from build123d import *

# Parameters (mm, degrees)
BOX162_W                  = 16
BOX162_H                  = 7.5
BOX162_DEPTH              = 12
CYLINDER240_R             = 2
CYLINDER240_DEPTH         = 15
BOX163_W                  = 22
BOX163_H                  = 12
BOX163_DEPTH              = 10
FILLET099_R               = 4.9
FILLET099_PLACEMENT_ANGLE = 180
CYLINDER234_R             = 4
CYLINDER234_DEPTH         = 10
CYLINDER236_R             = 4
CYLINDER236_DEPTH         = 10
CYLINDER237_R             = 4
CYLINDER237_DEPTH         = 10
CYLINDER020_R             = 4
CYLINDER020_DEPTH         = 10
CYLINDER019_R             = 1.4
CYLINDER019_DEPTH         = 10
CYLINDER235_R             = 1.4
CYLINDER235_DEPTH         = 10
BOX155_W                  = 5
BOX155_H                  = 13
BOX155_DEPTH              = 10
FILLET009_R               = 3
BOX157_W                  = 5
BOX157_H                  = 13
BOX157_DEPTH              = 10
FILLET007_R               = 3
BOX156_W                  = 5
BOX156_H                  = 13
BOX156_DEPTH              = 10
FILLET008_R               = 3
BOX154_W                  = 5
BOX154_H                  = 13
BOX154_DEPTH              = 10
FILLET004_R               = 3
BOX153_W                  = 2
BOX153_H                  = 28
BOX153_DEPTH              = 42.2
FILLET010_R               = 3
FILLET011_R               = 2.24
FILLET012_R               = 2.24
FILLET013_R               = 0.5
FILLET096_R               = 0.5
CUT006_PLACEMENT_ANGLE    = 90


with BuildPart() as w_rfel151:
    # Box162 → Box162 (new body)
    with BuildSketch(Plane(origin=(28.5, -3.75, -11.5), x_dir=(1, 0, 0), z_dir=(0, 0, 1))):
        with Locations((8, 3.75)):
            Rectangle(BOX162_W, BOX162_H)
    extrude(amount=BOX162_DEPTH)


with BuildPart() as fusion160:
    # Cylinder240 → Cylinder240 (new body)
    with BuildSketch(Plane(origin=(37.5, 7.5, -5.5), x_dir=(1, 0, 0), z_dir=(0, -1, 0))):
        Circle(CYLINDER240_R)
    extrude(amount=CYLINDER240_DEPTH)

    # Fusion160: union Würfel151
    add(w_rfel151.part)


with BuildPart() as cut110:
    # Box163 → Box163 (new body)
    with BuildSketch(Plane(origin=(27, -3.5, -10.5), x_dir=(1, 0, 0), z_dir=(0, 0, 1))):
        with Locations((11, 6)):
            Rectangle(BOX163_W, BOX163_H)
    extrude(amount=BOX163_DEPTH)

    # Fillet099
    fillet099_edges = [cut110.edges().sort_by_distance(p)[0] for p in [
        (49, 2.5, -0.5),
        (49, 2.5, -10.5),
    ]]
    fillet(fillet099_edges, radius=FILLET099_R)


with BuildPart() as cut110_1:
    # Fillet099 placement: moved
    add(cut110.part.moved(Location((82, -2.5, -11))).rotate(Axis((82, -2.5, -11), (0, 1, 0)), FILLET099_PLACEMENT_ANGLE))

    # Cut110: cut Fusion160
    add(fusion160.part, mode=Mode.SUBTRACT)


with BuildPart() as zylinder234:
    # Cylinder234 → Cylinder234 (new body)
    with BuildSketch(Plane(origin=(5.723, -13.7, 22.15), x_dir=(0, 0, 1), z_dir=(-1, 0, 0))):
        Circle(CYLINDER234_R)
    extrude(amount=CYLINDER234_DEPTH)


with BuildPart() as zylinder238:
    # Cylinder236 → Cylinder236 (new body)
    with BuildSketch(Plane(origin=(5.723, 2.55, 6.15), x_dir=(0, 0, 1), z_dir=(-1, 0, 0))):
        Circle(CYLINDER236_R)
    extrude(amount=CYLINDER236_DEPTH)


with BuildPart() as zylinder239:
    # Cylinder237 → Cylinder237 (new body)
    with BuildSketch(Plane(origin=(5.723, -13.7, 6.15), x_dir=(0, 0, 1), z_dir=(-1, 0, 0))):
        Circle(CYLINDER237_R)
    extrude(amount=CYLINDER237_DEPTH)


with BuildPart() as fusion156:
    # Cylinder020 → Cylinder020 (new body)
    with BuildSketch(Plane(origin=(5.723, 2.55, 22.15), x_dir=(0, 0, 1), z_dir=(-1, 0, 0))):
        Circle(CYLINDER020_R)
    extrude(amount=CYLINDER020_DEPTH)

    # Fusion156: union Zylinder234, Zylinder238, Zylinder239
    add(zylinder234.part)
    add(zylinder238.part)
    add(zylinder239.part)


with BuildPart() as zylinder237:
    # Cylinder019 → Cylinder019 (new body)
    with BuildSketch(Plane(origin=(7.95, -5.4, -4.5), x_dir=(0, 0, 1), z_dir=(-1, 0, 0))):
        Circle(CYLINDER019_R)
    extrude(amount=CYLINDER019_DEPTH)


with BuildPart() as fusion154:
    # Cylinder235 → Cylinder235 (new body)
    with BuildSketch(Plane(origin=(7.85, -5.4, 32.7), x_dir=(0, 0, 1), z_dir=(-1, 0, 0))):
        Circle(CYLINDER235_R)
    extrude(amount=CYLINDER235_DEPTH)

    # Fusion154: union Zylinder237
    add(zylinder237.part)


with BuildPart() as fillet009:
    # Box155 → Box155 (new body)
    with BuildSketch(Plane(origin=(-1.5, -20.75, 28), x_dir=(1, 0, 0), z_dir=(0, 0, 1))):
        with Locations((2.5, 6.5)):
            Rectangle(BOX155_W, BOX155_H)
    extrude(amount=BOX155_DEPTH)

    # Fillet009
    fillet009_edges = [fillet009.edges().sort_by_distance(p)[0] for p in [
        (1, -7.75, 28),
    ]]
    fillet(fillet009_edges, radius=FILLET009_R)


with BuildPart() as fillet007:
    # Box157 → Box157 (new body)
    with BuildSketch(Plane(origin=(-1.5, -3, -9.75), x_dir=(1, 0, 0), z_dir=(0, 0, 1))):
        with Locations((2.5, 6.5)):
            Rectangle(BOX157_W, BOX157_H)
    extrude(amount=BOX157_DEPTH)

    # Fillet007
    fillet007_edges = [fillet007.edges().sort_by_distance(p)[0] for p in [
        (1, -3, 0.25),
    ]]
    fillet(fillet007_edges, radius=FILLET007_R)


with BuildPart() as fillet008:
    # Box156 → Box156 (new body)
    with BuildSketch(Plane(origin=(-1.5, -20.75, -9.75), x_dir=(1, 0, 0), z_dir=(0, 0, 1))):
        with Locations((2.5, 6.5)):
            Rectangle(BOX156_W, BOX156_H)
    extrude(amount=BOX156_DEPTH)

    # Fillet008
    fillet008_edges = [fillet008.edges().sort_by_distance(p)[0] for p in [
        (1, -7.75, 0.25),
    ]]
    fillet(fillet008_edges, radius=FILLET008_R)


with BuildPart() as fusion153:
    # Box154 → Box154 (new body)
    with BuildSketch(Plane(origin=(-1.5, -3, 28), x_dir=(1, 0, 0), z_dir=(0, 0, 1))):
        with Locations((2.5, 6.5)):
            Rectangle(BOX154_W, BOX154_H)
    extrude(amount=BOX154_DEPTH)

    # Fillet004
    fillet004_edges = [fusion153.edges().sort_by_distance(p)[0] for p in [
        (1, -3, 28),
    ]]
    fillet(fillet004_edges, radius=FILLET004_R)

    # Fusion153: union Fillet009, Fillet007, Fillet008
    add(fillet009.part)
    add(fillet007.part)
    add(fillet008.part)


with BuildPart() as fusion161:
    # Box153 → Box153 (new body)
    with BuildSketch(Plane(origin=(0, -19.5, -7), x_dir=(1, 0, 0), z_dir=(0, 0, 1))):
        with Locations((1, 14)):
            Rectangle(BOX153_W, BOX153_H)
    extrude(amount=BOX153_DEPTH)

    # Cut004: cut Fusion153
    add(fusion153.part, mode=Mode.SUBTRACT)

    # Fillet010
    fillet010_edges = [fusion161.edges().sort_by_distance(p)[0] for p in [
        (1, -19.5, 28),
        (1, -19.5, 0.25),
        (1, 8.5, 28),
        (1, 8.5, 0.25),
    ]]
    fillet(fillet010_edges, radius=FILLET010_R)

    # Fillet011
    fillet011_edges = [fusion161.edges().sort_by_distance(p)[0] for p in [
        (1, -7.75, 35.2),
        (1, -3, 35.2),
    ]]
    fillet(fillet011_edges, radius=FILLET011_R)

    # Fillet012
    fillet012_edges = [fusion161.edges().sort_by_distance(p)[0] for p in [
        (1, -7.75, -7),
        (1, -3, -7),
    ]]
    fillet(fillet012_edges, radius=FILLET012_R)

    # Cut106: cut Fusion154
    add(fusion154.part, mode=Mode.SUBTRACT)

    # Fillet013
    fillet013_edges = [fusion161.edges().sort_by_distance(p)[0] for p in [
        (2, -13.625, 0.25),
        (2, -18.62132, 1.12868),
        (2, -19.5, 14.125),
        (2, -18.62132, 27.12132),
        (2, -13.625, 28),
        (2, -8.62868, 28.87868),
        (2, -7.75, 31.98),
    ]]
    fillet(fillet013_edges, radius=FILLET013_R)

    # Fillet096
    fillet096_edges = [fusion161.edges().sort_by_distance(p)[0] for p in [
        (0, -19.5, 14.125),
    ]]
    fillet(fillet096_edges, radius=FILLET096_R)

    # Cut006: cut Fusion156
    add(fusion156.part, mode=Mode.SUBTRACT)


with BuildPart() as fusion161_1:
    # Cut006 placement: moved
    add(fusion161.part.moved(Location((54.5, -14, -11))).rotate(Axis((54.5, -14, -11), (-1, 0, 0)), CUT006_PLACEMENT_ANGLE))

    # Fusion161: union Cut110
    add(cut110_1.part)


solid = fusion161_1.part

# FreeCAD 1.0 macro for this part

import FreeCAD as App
import Part
import Sketcher

V = App.Vector
Q = App.Units.Quantity


def edges_at(feature, points):
    """Names of the edges that pass closest to the given points."""
    edges = feature.Shape.Edges
    near = lambda p: min(range(len(edges)), key=lambda i: edges[i].distToShape(Part.Vertex(*p))[0])
    return sorted({f"Edge{near(p) + 1}" for p in points})


def add_polygon(sketch, points):
    """Adds a closed chain of lines whose ends are joined by coincident constraints."""
    first, n = sketch.GeometryCount, len(points)
    for a, b in zip(points, points[1:] + points[:1]):
        sketch.addGeometry(Part.LineSegment(App.Vector(*a, 0), App.Vector(*b, 0)), False)
    for i in range(n):
        sketch.addConstraint(Sketcher.Constraint("Coincident", first + i, 2, first + (i + 1) % n, 1))

doc = App.newDocument("Part")
params = doc.addObject("Spreadsheet::Sheet", "Params")
for row, (alias, value) in enumerate([
    ("sketch1_width", "16 mm"),
    ("sketch1_height", "7.5 mm"),
    ("pad1_length", "12 mm"),
    ("sketch2_diameter", "4 mm"),
    ("pad2_length", "15 mm"),
    ("sketch3_width", "22 mm"),
    ("sketch3_height", "12 mm"),
    ("pad3_length", "10 mm"),
    ("fillet_radius", "4.9 mm"),
    ("sketch4_diameter", "8 mm"),
    ("pad4_length", "10 mm"),
    ("sketch5_diameter", "8 mm"),
    ("pad5_length", "10 mm"),
    ("sketch6_diameter", "8 mm"),
    ("pad6_length", "10 mm"),
    ("sketch7_diameter", "8 mm"),
    ("pad7_length", "10 mm"),
    ("sketch8_diameter", "2.8 mm"),
    ("pad8_length", "10 mm"),
    ("sketch9_diameter", "2.8 mm"),
    ("pad9_length", "10 mm"),
    ("sketch10_width", "5 mm"),
    ("sketch10_height", "13 mm"),
    ("pad10_length", "10 mm"),
    ("fillet2_radius", "3 mm"),
    ("sketch11_width", "5 mm"),
    ("sketch11_height", "13 mm"),
    ("pad11_length", "10 mm"),
    ("fillet3_radius", "3 mm"),
    ("sketch12_width", "5 mm"),
    ("sketch12_height", "13 mm"),
    ("pad12_length", "10 mm"),
    ("fillet4_radius", "3 mm"),
    ("sketch13_width", "5 mm"),
    ("sketch13_height", "13 mm"),
    ("pad13_length", "10 mm"),
    ("fillet5_radius", "3 mm"),
    ("sketch14_width", "2 mm"),
    ("sketch14_height", "28 mm"),
    ("pad14_length", "42.2 mm"),
    ("fillet6_radius", "3 mm"),
    ("fillet7_radius", "2.24 mm"),
    ("fillet8_radius", "2.24 mm"),
    ("fillet9_radius", "0.5 mm"),
    ("fillet10_radius", "0.5 mm"),
], start=1):
    params.set(f"A{row}", alias)
    params.set(f"B{row}", "=" + value)
    params.setAlias(f"B{row}", alias)

body = doc.addObject("PartDesign::Body", "Body")

sketch1 = body.newObject("Sketcher::SketchObject", "Sketch")
sketch1.AttachmentSupport = (doc.getObject("XY_Plane"), [""])
sketch1.MapMode = "FlatFace"
sketch1.AttachmentOffset = App.Placement(V(0, 0, -11.5), App.Rotation())
add_polygon(sketch1, [(28, 4), (28, -4), (44, -4), (44, 4)])
sketch1.addConstraint(Sketcher.Constraint("Vertical", 0))
sketch1.addConstraint(Sketcher.Constraint("Horizontal", 1))
sketch1.addConstraint(Sketcher.Constraint("Vertical", 2))
sketch1.addConstraint(Sketcher.Constraint("Horizontal", 3))
sketch1.addConstraint(Sketcher.Constraint("DistanceX", 1, 1, 1, 2, Q("16 mm")))
sketch1.addConstraint(Sketcher.Constraint("DistanceY", 0, 2, 0, 1, Q("7.5 mm")))
sketch1.addConstraint(Sketcher.Constraint("DistanceX", -1, 1, 0, 2, Q("28.5 mm")))
sketch1.addConstraint(Sketcher.Constraint("DistanceY", 0, 2, -1, 1, Q("3.75 mm")))
sketch1.setExpression("Constraints[8]", "Params.sketch1_width")
sketch1.setExpression("Constraints[9]", "Params.sketch1_height")
pad1 = body.newObject("PartDesign::Pad", "Pad")
pad1.Profile = sketch1
pad1.setExpression("Length", "Params.pad1_length")
body2 = doc.addObject("PartDesign::Body", "Body001")

sketch2 = body2.newObject("Sketcher::SketchObject", "Sketch001")
sketch2.AttachmentSupport = (doc.getObject("XZ_Plane001"), [""])
sketch2.MapMode = "FlatFace"
sketch2.AttachmentOffset = App.Placement(V(0, 0, -7.5), App.Rotation())
sketch2.addGeometry(Part.Circle(V(37.5, -5.5, 0), V(0, 0, 1), 2), False)
sketch2.addConstraint(Sketcher.Constraint("Diameter", 0, Q("4 mm")))
sketch2.addConstraint(Sketcher.Constraint("DistanceX", -1, 1, 0, 3, Q("37.5 mm")))
sketch2.addConstraint(Sketcher.Constraint("DistanceY", 0, 3, -1, 1, Q("5.5 mm")))
sketch2.setExpression("Constraints[0]", "Params.sketch2_diameter")
pad2 = body2.newObject("PartDesign::Pad", "Pad001")
pad2.Profile = sketch2
pad2.setExpression("Length", "Params.pad2_length")
doc.recompute()

boolean = body2.newObject("PartDesign::Boolean", "Boolean")
boolean.Type = "Fuse"
boolean.addObjects([body])
body3 = doc.addObject("PartDesign::Body", "Body002")

sketch3 = body3.newObject("Sketcher::SketchObject", "Sketch002")
sketch3.AttachmentSupport = (doc.getObject("XY_Plane002"), [""])
sketch3.MapMode = "FlatFace"
sketch3.AttachmentOffset = App.Placement(V(0, 0, -10.5), App.Rotation())
add_polygon(sketch3, [(27, 8), (27, -4), (49, -4), (49, 8)])
sketch3.addConstraint(Sketcher.Constraint("Vertical", 0))
sketch3.addConstraint(Sketcher.Constraint("Horizontal", 1))
sketch3.addConstraint(Sketcher.Constraint("Vertical", 2))
sketch3.addConstraint(Sketcher.Constraint("Horizontal", 3))
sketch3.addConstraint(Sketcher.Constraint("DistanceX", 1, 1, 1, 2, Q("22 mm")))
sketch3.addConstraint(Sketcher.Constraint("DistanceY", 0, 2, 0, 1, Q("12 mm")))
sketch3.addConstraint(Sketcher.Constraint("DistanceX", -1, 1, 0, 2, Q("27 mm")))
sketch3.addConstraint(Sketcher.Constraint("DistanceY", 0, 2, -1, 1, Q("3.5 mm")))
sketch3.setExpression("Constraints[8]", "Params.sketch3_width")
sketch3.setExpression("Constraints[9]", "Params.sketch3_height")
pad3 = body3.newObject("PartDesign::Pad", "Pad002")
pad3.Profile = sketch3
pad3.setExpression("Length", "Params.pad3_length")
doc.recompute()

fillet = body3.newObject("PartDesign::Fillet", "Fillet")
fillet.Base = (pad3, edges_at(pad3, [(49, 2.5, -0.5), (49, 2.5, -10.5)]))
fillet.setExpression("Radius", "Params.fillet_radius")
body4 = doc.addObject("PartDesign::Body", "Body003")
doc.recompute()

body3.Placement = App.Placement(V(82, -2.5, -11), App.Rotation(V(0, 1, 0), 180))
boolean2 = body4.newObject("PartDesign::Boolean", "Boolean001")
boolean2.Type = "Fuse"
boolean2.addObjects([body3])
doc.recompute()

boolean3 = body4.newObject("PartDesign::Boolean", "Boolean002")
boolean3.Type = "Cut"
boolean3.addObjects([body2])
body5 = doc.addObject("PartDesign::Body", "Body004")

sketch4 = body5.newObject("Sketcher::SketchObject", "Sketch003")
sketch4.AttachmentSupport = (doc.getObject("YZ_Plane004"), [""])
sketch4.MapMode = "FlatFace"
sketch4.AttachmentOffset = App.Placement(V(0, 0, 5.723), App.Rotation())
sketch4.addGeometry(Part.Circle(V(-13.7, 22.1, 0), V(0, 0, 1), 4), False)
sketch4.addConstraint(Sketcher.Constraint("Diameter", 0, Q("8 mm")))
sketch4.addConstraint(Sketcher.Constraint("DistanceX", 0, 3, -1, 1, Q("13.7 mm")))
sketch4.addConstraint(Sketcher.Constraint("DistanceY", -1, 1, 0, 3, Q("22.15 mm")))
sketch4.setExpression("Constraints[0]", "Params.sketch4_diameter")
pad4 = body5.newObject("PartDesign::Pad", "Pad003")
pad4.Profile = sketch4
pad4.setExpression("Length", "Params.pad4_length")
pad4.Reversed = True
body6 = doc.addObject("PartDesign::Body", "Body005")

sketch5 = body6.newObject("Sketcher::SketchObject", "Sketch004")
sketch5.AttachmentSupport = (doc.getObject("YZ_Plane005"), [""])
sketch5.MapMode = "FlatFace"
sketch5.AttachmentOffset = App.Placement(V(0, 0, 5.723), App.Rotation())
sketch5.addGeometry(Part.Circle(V(2.5, 6.2, 0), V(0, 0, 1), 4), False)
sketch5.addConstraint(Sketcher.Constraint("Diameter", 0, Q("8 mm")))
sketch5.addConstraint(Sketcher.Constraint("DistanceX", -1, 1, 0, 3, Q("2.55 mm")))
sketch5.addConstraint(Sketcher.Constraint("DistanceY", -1, 1, 0, 3, Q("6.15 mm")))
sketch5.setExpression("Constraints[0]", "Params.sketch5_diameter")
pad5 = body6.newObject("PartDesign::Pad", "Pad004")
pad5.Profile = sketch5
pad5.setExpression("Length", "Params.pad5_length")
pad5.Reversed = True
body7 = doc.addObject("PartDesign::Body", "Body006")

sketch6 = body7.newObject("Sketcher::SketchObject", "Sketch005")
sketch6.AttachmentSupport = (doc.getObject("YZ_Plane006"), [""])
sketch6.MapMode = "FlatFace"
sketch6.AttachmentOffset = App.Placement(V(0, 0, 5.723), App.Rotation())
sketch6.addGeometry(Part.Circle(V(-13.7, 6.2, 0), V(0, 0, 1), 4), False)
sketch6.addConstraint(Sketcher.Constraint("Diameter", 0, Q("8 mm")))
sketch6.addConstraint(Sketcher.Constraint("DistanceX", 0, 3, -1, 1, Q("13.7 mm")))
sketch6.addConstraint(Sketcher.Constraint("DistanceY", -1, 1, 0, 3, Q("6.15 mm")))
sketch6.setExpression("Constraints[0]", "Params.sketch6_diameter")
pad6 = body7.newObject("PartDesign::Pad", "Pad005")
pad6.Profile = sketch6
pad6.setExpression("Length", "Params.pad6_length")
pad6.Reversed = True
body8 = doc.addObject("PartDesign::Body", "Body007")
body8.AllowCompound = True

sketch7 = body8.newObject("Sketcher::SketchObject", "Sketch006")
sketch7.AttachmentSupport = (doc.getObject("YZ_Plane007"), [""])
sketch7.MapMode = "FlatFace"
sketch7.AttachmentOffset = App.Placement(V(0, 0, 5.723), App.Rotation())
sketch7.addGeometry(Part.Circle(V(2.5, 22.1, 0), V(0, 0, 1), 4), False)
sketch7.addConstraint(Sketcher.Constraint("Diameter", 0, Q("8 mm")))
sketch7.addConstraint(Sketcher.Constraint("DistanceX", -1, 1, 0, 3, Q("2.55 mm")))
sketch7.addConstraint(Sketcher.Constraint("DistanceY", -1, 1, 0, 3, Q("22.15 mm")))
sketch7.setExpression("Constraints[0]", "Params.sketch7_diameter")
pad7 = body8.newObject("PartDesign::Pad", "Pad006")
pad7.Profile = sketch7
pad7.setExpression("Length", "Params.pad7_length")
pad7.Reversed = True
doc.recompute()

boolean4 = body8.newObject("PartDesign::Boolean", "Boolean003")
boolean4.Type = "Fuse"
boolean4.addObjects([body5])
doc.recompute()

boolean5 = body8.newObject("PartDesign::Boolean", "Boolean004")
boolean5.Type = "Fuse"
boolean5.addObjects([body6])
doc.recompute()

boolean6 = body8.newObject("PartDesign::Boolean", "Boolean005")
boolean6.Type = "Fuse"
boolean6.addObjects([body7])
body9 = doc.addObject("PartDesign::Body", "Body008")

sketch8 = body9.newObject("Sketcher::SketchObject", "Sketch007")
sketch8.AttachmentSupport = (doc.getObject("YZ_Plane008"), [""])
sketch8.MapMode = "FlatFace"
sketch8.AttachmentOffset = App.Placement(V(0, 0, 7.95), App.Rotation())
sketch8.addGeometry(Part.Circle(V(-5.4, -4.5, 0), V(0, 0, 1), 1.4), False)
sketch8.addConstraint(Sketcher.Constraint("Diameter", 0, Q("2.8 mm")))
sketch8.addConstraint(Sketcher.Constraint("DistanceX", 0, 3, -1, 1, Q("5.4 mm")))
sketch8.addConstraint(Sketcher.Constraint("DistanceY", 0, 3, -1, 1, Q("4.5 mm")))
sketch8.setExpression("Constraints[0]", "Params.sketch8_diameter")
pad8 = body9.newObject("PartDesign::Pad", "Pad007")
pad8.Profile = sketch8
pad8.setExpression("Length", "Params.pad8_length")
pad8.Reversed = True
body10 = doc.addObject("PartDesign::Body", "Body009")
body10.AllowCompound = True

sketch9 = body10.newObject("Sketcher::SketchObject", "Sketch008")
sketch9.AttachmentSupport = (doc.getObject("YZ_Plane009"), [""])
sketch9.MapMode = "FlatFace"
sketch9.AttachmentOffset = App.Placement(V(0, 0, 7.85), App.Rotation())
sketch9.addGeometry(Part.Circle(V(-5.4, 32.7, 0), V(0, 0, 1), 1.4), False)
sketch9.addConstraint(Sketcher.Constraint("Diameter", 0, Q("2.8 mm")))
sketch9.addConstraint(Sketcher.Constraint("DistanceX", 0, 3, -1, 1, Q("5.4 mm")))
sketch9.addConstraint(Sketcher.Constraint("DistanceY", -1, 1, 0, 3, Q("32.7 mm")))
sketch9.setExpression("Constraints[0]", "Params.sketch9_diameter")
pad9 = body10.newObject("PartDesign::Pad", "Pad008")
pad9.Profile = sketch9
pad9.setExpression("Length", "Params.pad9_length")
pad9.Reversed = True
doc.recompute()

boolean7 = body10.newObject("PartDesign::Boolean", "Boolean006")
boolean7.Type = "Fuse"
boolean7.addObjects([body9])
body11 = doc.addObject("PartDesign::Body", "Body010")

sketch10 = body11.newObject("Sketcher::SketchObject", "Sketch009")
sketch10.AttachmentSupport = (doc.getObject("XY_Plane010"), [""])
sketch10.MapMode = "FlatFace"
sketch10.AttachmentOffset = App.Placement(V(0, 0, 28), App.Rotation())
add_polygon(sketch10, [(-2, -8), (-2, -21), (4, -21), (4, -8)])
sketch10.addConstraint(Sketcher.Constraint("Vertical", 0))
sketch10.addConstraint(Sketcher.Constraint("Horizontal", 1))
sketch10.addConstraint(Sketcher.Constraint("Vertical", 2))
sketch10.addConstraint(Sketcher.Constraint("Horizontal", 3))
sketch10.addConstraint(Sketcher.Constraint("DistanceX", 1, 1, 1, 2, Q("5 mm")))
sketch10.addConstraint(Sketcher.Constraint("DistanceY", 0, 2, 0, 1, Q("13 mm")))
sketch10.addConstraint(Sketcher.Constraint("DistanceX", 0, 2, -1, 1, Q("1.5 mm")))
sketch10.addConstraint(Sketcher.Constraint("DistanceY", 0, 2, -1, 1, Q("20.75 mm")))
sketch10.setExpression("Constraints[8]", "Params.sketch10_width")
sketch10.setExpression("Constraints[9]", "Params.sketch10_height")
pad10 = body11.newObject("PartDesign::Pad", "Pad009")
pad10.Profile = sketch10
pad10.setExpression("Length", "Params.pad10_length")
doc.recompute()

fillet2 = body11.newObject("PartDesign::Fillet", "Fillet001")
fillet2.Base = (pad10, edges_at(pad10, [(1, -7.75, 28)]))
fillet2.setExpression("Radius", "Params.fillet2_radius")
body12 = doc.addObject("PartDesign::Body", "Body011")

sketch11 = body12.newObject("Sketcher::SketchObject", "Sketch010")
sketch11.AttachmentSupport = (doc.getObject("XY_Plane011"), [""])
sketch11.MapMode = "FlatFace"
sketch11.AttachmentOffset = App.Placement(V(0, 0, -9.75), App.Rotation())
add_polygon(sketch11, [(-2, 10), (-2, -3), (4, -3), (4, 10)])
sketch11.addConstraint(Sketcher.Constraint("Vertical", 0))
sketch11.addConstraint(Sketcher.Constraint("Horizontal", 1))
sketch11.addConstraint(Sketcher.Constraint("Vertical", 2))
sketch11.addConstraint(Sketcher.Constraint("Horizontal", 3))
sketch11.addConstraint(Sketcher.Constraint("DistanceX", 1, 1, 1, 2, Q("5 mm")))
sketch11.addConstraint(Sketcher.Constraint("DistanceY", 0, 2, 0, 1, Q("13 mm")))
sketch11.addConstraint(Sketcher.Constraint("DistanceY", 0, 2, -1, 1, Q("3 mm")))
sketch11.addConstraint(Sketcher.Constraint("DistanceX", 0, 2, -1, 1, Q("1.5 mm")))
sketch11.setExpression("Constraints[8]", "Params.sketch11_width")
sketch11.setExpression("Constraints[9]", "Params.sketch11_height")
pad11 = body12.newObject("PartDesign::Pad", "Pad010")
pad11.Profile = sketch11
pad11.setExpression("Length", "Params.pad11_length")
doc.recompute()

fillet3 = body12.newObject("PartDesign::Fillet", "Fillet002")
fillet3.Base = (pad11, edges_at(pad11, [(1, -3, 0.25)]))
fillet3.setExpression("Radius", "Params.fillet3_radius")
body13 = doc.addObject("PartDesign::Body", "Body012")

sketch12 = body13.newObject("Sketcher::SketchObject", "Sketch011")
sketch12.AttachmentSupport = (doc.getObject("XY_Plane012"), [""])
sketch12.MapMode = "FlatFace"
sketch12.AttachmentOffset = App.Placement(V(0, 0, -9.75), App.Rotation())
add_polygon(sketch12, [(-2, -8), (-2, -21), (4, -21), (4, -8)])
sketch12.addConstraint(Sketcher.Constraint("Vertical", 0))
sketch12.addConstraint(Sketcher.Constraint("Horizontal", 1))
sketch12.addConstraint(Sketcher.Constraint("Vertical", 2))
sketch12.addConstraint(Sketcher.Constraint("Horizontal", 3))
sketch12.addConstraint(Sketcher.Constraint("DistanceX", 1, 1, 1, 2, Q("5 mm")))
sketch12.addConstraint(Sketcher.Constraint("DistanceY", 0, 2, 0, 1, Q("13 mm")))
sketch12.addConstraint(Sketcher.Constraint("DistanceX", 0, 2, -1, 1, Q("1.5 mm")))
sketch12.addConstraint(Sketcher.Constraint("DistanceY", 0, 2, -1, 1, Q("20.75 mm")))
sketch12.setExpression("Constraints[8]", "Params.sketch12_width")
sketch12.setExpression("Constraints[9]", "Params.sketch12_height")
pad12 = body13.newObject("PartDesign::Pad", "Pad011")
pad12.Profile = sketch12
pad12.setExpression("Length", "Params.pad12_length")
doc.recompute()

fillet4 = body13.newObject("PartDesign::Fillet", "Fillet003")
fillet4.Base = (pad12, edges_at(pad12, [(1, -7.75, 0.25)]))
fillet4.setExpression("Radius", "Params.fillet4_radius")
body14 = doc.addObject("PartDesign::Body", "Body013")
body14.AllowCompound = True

sketch13 = body14.newObject("Sketcher::SketchObject", "Sketch012")
sketch13.AttachmentSupport = (doc.getObject("XY_Plane013"), [""])
sketch13.MapMode = "FlatFace"
sketch13.AttachmentOffset = App.Placement(V(0, 0, 28), App.Rotation())
add_polygon(sketch13, [(-2, 10), (-2, -3), (4, -3), (4, 10)])
sketch13.addConstraint(Sketcher.Constraint("Vertical", 0))
sketch13.addConstraint(Sketcher.Constraint("Horizontal", 1))
sketch13.addConstraint(Sketcher.Constraint("Vertical", 2))
sketch13.addConstraint(Sketcher.Constraint("Horizontal", 3))
sketch13.addConstraint(Sketcher.Constraint("DistanceX", 1, 1, 1, 2, Q("5 mm")))
sketch13.addConstraint(Sketcher.Constraint("DistanceY", 0, 2, 0, 1, Q("13 mm")))
sketch13.addConstraint(Sketcher.Constraint("DistanceY", 0, 2, -1, 1, Q("3 mm")))
sketch13.addConstraint(Sketcher.Constraint("DistanceX", 0, 2, -1, 1, Q("1.5 mm")))
sketch13.setExpression("Constraints[8]", "Params.sketch13_width")
sketch13.setExpression("Constraints[9]", "Params.sketch13_height")
pad13 = body14.newObject("PartDesign::Pad", "Pad012")
pad13.Profile = sketch13
pad13.setExpression("Length", "Params.pad13_length")
doc.recompute()

fillet5 = body14.newObject("PartDesign::Fillet", "Fillet004")
fillet5.Base = (pad13, edges_at(pad13, [(1, -3, 28)]))
fillet5.setExpression("Radius", "Params.fillet5_radius")
doc.recompute()

boolean8 = body14.newObject("PartDesign::Boolean", "Boolean007")
boolean8.Type = "Fuse"
boolean8.addObjects([body11])
doc.recompute()

boolean9 = body14.newObject("PartDesign::Boolean", "Boolean008")
boolean9.Type = "Fuse"
boolean9.addObjects([body12])
doc.recompute()

boolean10 = body14.newObject("PartDesign::Boolean", "Boolean009")
boolean10.Type = "Fuse"
boolean10.addObjects([body13])
body15 = doc.addObject("PartDesign::Body", "Body014")

sketch14 = body15.newObject("Sketcher::SketchObject", "Sketch013")
sketch14.AttachmentSupport = (doc.getObject("XY_Plane014"), [""])
sketch14.MapMode = "FlatFace"
sketch14.AttachmentOffset = App.Placement(V(0, 0, -7), App.Rotation())
add_polygon(sketch14, [(0, 8.5), (0, -19.5), (2, -19.5), (2, 8.5)])
sketch14.addConstraint(Sketcher.Constraint("Vertical", 0))
sketch14.addConstraint(Sketcher.Constraint("Horizontal", 1))
sketch14.addConstraint(Sketcher.Constraint("Vertical", 2))
sketch14.addConstraint(Sketcher.Constraint("Horizontal", 3))
sketch14.addConstraint(Sketcher.Constraint("PointOnObject", 0, 2, -2))
sketch14.addConstraint(Sketcher.Constraint("DistanceX", 1, 1, 1, 2, Q("2 mm")))
sketch14.addConstraint(Sketcher.Constraint("DistanceY", 0, 2, 0, 1, Q("28 mm")))
sketch14.addConstraint(Sketcher.Constraint("DistanceY", 0, 2, -1, 1, Q("19.5 mm")))
sketch14.setExpression("Constraints[9]", "Params.sketch14_width")
sketch14.setExpression("Constraints[10]", "Params.sketch14_height")
pad14 = body15.newObject("PartDesign::Pad", "Pad013")
pad14.Profile = sketch14
pad14.setExpression("Length", "Params.pad14_length")
doc.recompute()

boolean11 = body15.newObject("PartDesign::Boolean", "Boolean010")
boolean11.Type = "Cut"
boolean11.addObjects([body14])
doc.recompute()

fillet6 = body15.newObject("PartDesign::Fillet", "Fillet005")
fillet6.Base = (boolean11, edges_at(boolean11, [
    (1, -19.5, 28),
    (1, -19.5, 0.25),
    (1, 8.5, 28),
    (1, 8.5, 0.25),
]))
fillet6.setExpression("Radius", "Params.fillet6_radius")
doc.recompute()

fillet7 = body15.newObject("PartDesign::Fillet", "Fillet006")
fillet7.Base = (fillet6, edges_at(fillet6, [(1, -7.75, 35.2), (1, -3, 35.2)]))
fillet7.setExpression("Radius", "Params.fillet7_radius")
doc.recompute()

fillet8 = body15.newObject("PartDesign::Fillet", "Fillet007")
fillet8.Base = (fillet7, edges_at(fillet7, [(1, -7.75, -7), (1, -3, -7)]))
fillet8.setExpression("Radius", "Params.fillet8_radius")
doc.recompute()

boolean12 = body15.newObject("PartDesign::Boolean", "Boolean011")
boolean12.Type = "Cut"
boolean12.addObjects([body10])
doc.recompute()

fillet9 = body15.newObject("PartDesign::Fillet", "Fillet008")
fillet9.Base = (boolean12, edges_at(boolean12, [
    (2, -13.625, 0.25),
    (2, -18.621, 1.129),
    (2, -19.5, 14.125),
    (2, -18.621, 27.121),
    (2, -13.625, 28),
    (2, -8.629, 28.879),
    (2, -7.75, 31.98),
]))
fillet9.setExpression("Radius", "Params.fillet9_radius")
doc.recompute()

fillet10 = body15.newObject("PartDesign::Fillet", "Fillet009")
fillet10.Base = (fillet9, edges_at(fillet9, [(0, -19.5, 14.125)]))
fillet10.setExpression("Radius", "Params.fillet10_radius")
doc.recompute()

boolean13 = body15.newObject("PartDesign::Boolean", "Boolean012")
boolean13.Type = "Cut"
boolean13.addObjects([body8])
body16 = doc.addObject("PartDesign::Body", "Body015")
doc.recompute()

body15.Placement = App.Placement(V(54.5, -14, -11), App.Rotation(V(-1, 0, 0), 90))
boolean14 = body16.newObject("PartDesign::Boolean", "Boolean013")
boolean14.Type = "Fuse"
boolean14.addObjects([body15])
doc.recompute()

boolean15 = body16.newObject("PartDesign::Boolean", "Boolean014")
boolean15.Type = "Fuse"
boolean15.addObjects([body4])

doc.recompute()
